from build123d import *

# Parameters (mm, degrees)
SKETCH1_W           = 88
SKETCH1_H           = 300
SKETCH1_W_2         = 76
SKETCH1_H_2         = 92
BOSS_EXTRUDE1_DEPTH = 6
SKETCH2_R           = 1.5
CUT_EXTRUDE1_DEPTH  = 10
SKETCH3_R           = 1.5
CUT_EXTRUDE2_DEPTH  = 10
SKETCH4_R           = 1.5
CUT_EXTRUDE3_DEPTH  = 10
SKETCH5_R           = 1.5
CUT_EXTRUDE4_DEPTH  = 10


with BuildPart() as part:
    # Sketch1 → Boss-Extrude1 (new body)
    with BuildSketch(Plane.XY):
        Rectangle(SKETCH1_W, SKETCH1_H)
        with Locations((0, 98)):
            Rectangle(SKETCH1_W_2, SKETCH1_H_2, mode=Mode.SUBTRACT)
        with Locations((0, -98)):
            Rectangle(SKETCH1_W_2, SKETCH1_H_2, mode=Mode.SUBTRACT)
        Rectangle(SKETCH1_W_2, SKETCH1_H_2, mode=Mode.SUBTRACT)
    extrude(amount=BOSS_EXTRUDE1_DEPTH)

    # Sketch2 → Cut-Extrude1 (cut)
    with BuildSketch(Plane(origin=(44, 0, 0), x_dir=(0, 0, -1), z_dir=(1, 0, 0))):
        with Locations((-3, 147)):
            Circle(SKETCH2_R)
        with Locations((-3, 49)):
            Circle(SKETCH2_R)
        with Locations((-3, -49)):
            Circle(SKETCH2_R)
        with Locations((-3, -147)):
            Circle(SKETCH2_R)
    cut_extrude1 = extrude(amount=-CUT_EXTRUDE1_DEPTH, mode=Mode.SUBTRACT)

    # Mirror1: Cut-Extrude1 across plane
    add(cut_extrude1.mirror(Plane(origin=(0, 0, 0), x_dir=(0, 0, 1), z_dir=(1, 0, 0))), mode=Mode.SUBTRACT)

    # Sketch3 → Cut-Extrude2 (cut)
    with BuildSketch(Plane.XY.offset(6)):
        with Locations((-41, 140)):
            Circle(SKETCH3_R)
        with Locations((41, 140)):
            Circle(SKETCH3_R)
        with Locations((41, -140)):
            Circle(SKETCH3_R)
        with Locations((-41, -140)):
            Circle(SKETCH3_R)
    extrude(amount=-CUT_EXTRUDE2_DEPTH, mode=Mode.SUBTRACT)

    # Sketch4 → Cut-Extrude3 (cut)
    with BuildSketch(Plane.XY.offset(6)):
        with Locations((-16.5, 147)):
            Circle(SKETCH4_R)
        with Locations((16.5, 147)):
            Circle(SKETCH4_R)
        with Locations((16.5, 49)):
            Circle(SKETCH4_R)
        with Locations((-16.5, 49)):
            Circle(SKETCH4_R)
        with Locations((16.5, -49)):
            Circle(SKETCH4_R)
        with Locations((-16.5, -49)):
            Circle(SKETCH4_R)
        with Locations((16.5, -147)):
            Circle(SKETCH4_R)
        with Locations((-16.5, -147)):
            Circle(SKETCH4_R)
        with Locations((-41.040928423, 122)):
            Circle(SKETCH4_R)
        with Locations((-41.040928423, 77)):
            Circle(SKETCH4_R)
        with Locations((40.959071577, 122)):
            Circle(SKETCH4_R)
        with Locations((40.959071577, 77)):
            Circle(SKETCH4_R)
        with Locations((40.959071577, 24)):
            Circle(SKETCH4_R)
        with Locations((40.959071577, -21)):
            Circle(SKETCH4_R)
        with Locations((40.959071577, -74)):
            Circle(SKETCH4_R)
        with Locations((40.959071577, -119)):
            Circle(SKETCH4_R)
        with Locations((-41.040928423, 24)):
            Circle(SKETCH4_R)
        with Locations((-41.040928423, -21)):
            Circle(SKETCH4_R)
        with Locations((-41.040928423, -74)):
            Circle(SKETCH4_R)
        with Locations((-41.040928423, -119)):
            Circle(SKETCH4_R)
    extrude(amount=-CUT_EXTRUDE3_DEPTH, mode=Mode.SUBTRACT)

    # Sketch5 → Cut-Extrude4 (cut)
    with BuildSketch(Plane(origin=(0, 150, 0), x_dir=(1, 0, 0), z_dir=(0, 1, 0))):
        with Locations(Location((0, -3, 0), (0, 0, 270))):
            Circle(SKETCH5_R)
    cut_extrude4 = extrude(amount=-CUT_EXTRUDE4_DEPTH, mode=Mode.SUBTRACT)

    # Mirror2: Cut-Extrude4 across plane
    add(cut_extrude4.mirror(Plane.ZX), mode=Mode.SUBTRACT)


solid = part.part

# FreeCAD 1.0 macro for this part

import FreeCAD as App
import Part
import Sketcher

V = App.Vector


def add_polygon(sketch, points):
    """Adds a closed chain of lines whose ends are joined by coincident constraints."""
    first, n = sketch.GeometryCount, len(points)
    for a, b in zip(points, points[1:] + points[:1]):
        sketch.addGeometry(Part.LineSegment(App.Vector(*a, 0), App.Vector(*b, 0)), False)
    for i in range(n):
        sketch.addConstraint(Sketcher.Constraint("Coincident", first + i, 2, first + (i + 1) % n, 1))

doc = App.newDocument("Part")
body = doc.addObject("PartDesign::Body", "Body")

# Sketch on XY plane
sketch1 = body.newObject("Sketcher::SketchObject", "Sketch")
sketch1.AttachmentSupport = (doc.getObject("XY_Plane"), [""])
sketch1.MapMode = "FlatFace"
add_polygon(sketch1, [(-44, 150), (-44, -150), (44, -150), (44, 150)])  # lines 0-3
add_polygon(sketch1, [(38, -144), (-38, -144), (-38, -52), (38, -52)])  # lines 4-7
add_polygon(sketch1, [(38, -46), (-38, -46), (-38, 46), (38, 46)])  # lines 8-11
add_polygon(sketch1, [(38, 52), (-38, 52), (-38, 144), (38, 144)])  # lines 12-15
sketch1.addConstraint([
    Sketcher.Constraint("Vertical", 0),
    Sketcher.Constraint("Horizontal", 1),
    Sketcher.Constraint("Vertical", 2),
    Sketcher.Constraint("Horizontal", 3),
    Sketcher.Constraint("Horizontal", 4),
    Sketcher.Constraint("Vertical", 5),
    Sketcher.Constraint("Horizontal", 6),
    Sketcher.Constraint("Vertical", 7),
    Sketcher.Constraint("Horizontal", 8),
    Sketcher.Constraint("Vertical", 9),
    Sketcher.Constraint("Horizontal", 10),
    Sketcher.Constraint("Vertical", 11),
    Sketcher.Constraint("Horizontal", 12),
    Sketcher.Constraint("Vertical", 13),
    Sketcher.Constraint("Horizontal", 14),
    Sketcher.Constraint("Vertical", 15),
    Sketcher.Constraint("Symmetric", 0, 2, 2, 2, -1, 1),
    Sketcher.Constraint("Symmetric", 8, 2, 10, 2, -1, 1),
    Sketcher.Constraint("Symmetric", 6, 2, 12, 2, -1, 1),
    Sketcher.Constraint("Symmetric", 4, 2, 14, 2, -1, 1),
    Sketcher.Constraint("Vertical", 5, 2, 8, 2),
    Sketcher.Constraint("Vertical", 7, 2, 10, 2),
    Sketcher.Constraint("Equal", 7, 9),
    Sketcher.Constraint("DistanceX", 1, 1, 1, 2, 88.0),
    Sketcher.Constraint("DistanceX", 4, 2, 4, 1, 76.0),
    Sketcher.Constraint("DistanceY", 0, 2, 0, 1, 300.0),
    Sketcher.Constraint("DistanceY", 5, 1, 5, 2, 92.0),
    Sketcher.Constraint("DistanceY", 4, 2, -1, 1, 144.0),
])
pad1 = body.newObject("PartDesign::Pad", "Pad")
pad1.Profile = sketch1
pad1.Length = 6

# Sketch on YZ plane
sketch2 = body.newObject("Sketcher::SketchObject", "Sketch001")
sketch2.AttachmentSupport = (doc.getObject("YZ_Plane"), [""])
sketch2.MapMode = "FlatFace"
sketch2.AttachmentOffset = App.Placement(V(0, 0, 44), App.Rotation())
sketch2.addGeometry([
    Part.Circle(V(147, 3, 0), V(0, 0, 1), 1.5),
    Part.Circle(V(49, 3, 0), V(0, 0, 1), 1.5),
    Part.Circle(V(-49, 3, 0), V(0, 0, 1), 1.5),
    Part.Circle(V(-147, 3, 0), V(0, 0, 1), 1.5),
], False)
sketch2.addConstraint([
    Sketcher.Constraint("Equal", 0, 1),
    Sketcher.Constraint("Equal", 1, 2),
    Sketcher.Constraint("Equal", 2, 3),
    Sketcher.Constraint("Symmetric", 1, 3, 2, 3, -2),
    Sketcher.Constraint("Symmetric", 0, 3, 3, 3, -2),
    Sketcher.Constraint("Horizontal", 0, 3, 1, 3),
    Sketcher.Constraint("Diameter", 0, 3.0),
    Sketcher.Constraint("DistanceX", -1, 1, 0, 3, 147.0),
    Sketcher.Constraint("DistanceY", -1, 1, 0, 3, 3.0),
    Sketcher.Constraint("DistanceX", -1, 1, 1, 3, 49.0),
])
pocket1 = body.newObject("PartDesign::Pocket", "Pocket")
pocket1.Profile = sketch2
pocket1.Length = 10
doc.recompute()

mirrored = body.newObject("PartDesign::Mirrored", "Mirrored")
mirrored.Originals = [pocket1]
mirrored.MirrorPlane = (doc.getObject("YZ_Plane"), [""])
body.Tip = mirrored

# Sketch on XY plane
sketch3 = body.newObject("Sketcher::SketchObject", "Sketch002")
sketch3.AttachmentSupport = (doc.getObject("XY_Plane"), [""])
sketch3.MapMode = "FlatFace"
sketch3.AttachmentOffset = App.Placement(V(0, 0, 6), App.Rotation())
sketch3.addGeometry([
    Part.Circle(V(-41, 140, 0), V(0, 0, 1), 1.5),
    Part.Circle(V(41, 140, 0), V(0, 0, 1), 1.5),
    Part.Circle(V(41, -140, 0), V(0, 0, 1), 1.5),
    Part.Circle(V(-41, -140, 0), V(0, 0, 1), 1.5),
], False)
sketch3.addConstraint([
    Sketcher.Constraint("Equal", 0, 1),
    Sketcher.Constraint("Equal", 1, 2),
    Sketcher.Constraint("Equal", 2, 3),
    Sketcher.Constraint("Symmetric", 0, 3, 2, 3, -1, 1),
    Sketcher.Constraint("Symmetric", 1, 3, 3, 3, -1, 1),
    Sketcher.Constraint("Symmetric", 0, 3, 1, 3, -2),
    Sketcher.Constraint("Diameter", 0, 3.0),
    Sketcher.Constraint("DistanceX", 0, 3, -1, 1, 41.0),
    Sketcher.Constraint("DistanceY", -1, 1, 0, 3, 140.0),
])
pocket2 = body.newObject("PartDesign::Pocket", "Pocket001")
pocket2.Profile = sketch3
pocket2.Length = 10

# Sketch on XY plane
sketch4 = body.newObject("Sketcher::SketchObject", "Sketch003")
sketch4.AttachmentSupport = (doc.getObject("XY_Plane"), [""])
sketch4.MapMode = "FlatFace"
sketch4.AttachmentOffset = App.Placement(V(0, 0, 6), App.Rotation())
sketch4.addGeometry([
    Part.Circle(V(-16.5, 147, 0), V(0, 0, 1), 1.5),  # 0
    Part.Circle(V(16.5, 147, 0), V(0, 0, 1), 1.5),  # 1
    Part.Circle(V(16.5, 49, 0), V(0, 0, 1), 1.5),  # 2
    Part.Circle(V(-16.5, 49, 0), V(0, 0, 1), 1.5),  # 3
    Part.Circle(V(16.5, -49, 0), V(0, 0, 1), 1.5),  # 4
    Part.Circle(V(-16.5, -49, 0), V(0, 0, 1), 1.5),  # 5
    Part.Circle(V(16.5, -147, 0), V(0, 0, 1), 1.5),  # 6
    Part.Circle(V(-16.5, -147, 0), V(0, 0, 1), 1.5),  # 7
    Part.Circle(V(-41, 122, 0), V(0, 0, 1), 1.5),  # 8
    Part.Circle(V(-41, 77, 0), V(0, 0, 1), 1.5),  # 9
    Part.Circle(V(41, 122, 0), V(0, 0, 1), 1.5),  # 10
    Part.Circle(V(41, 77, 0), V(0, 0, 1), 1.5),  # 11
    Part.Circle(V(41, 24, 0), V(0, 0, 1), 1.5),  # 12
    Part.Circle(V(41, -21, 0), V(0, 0, 1), 1.5),  # 13
    Part.Circle(V(41, -74, 0), V(0, 0, 1), 1.5),  # 14
    Part.Circle(V(41, -119, 0), V(0, 0, 1), 1.5),  # 15
    Part.Circle(V(-41, 24, 0), V(0, 0, 1), 1.5),  # 16
    Part.Circle(V(-41, -21, 0), V(0, 0, 1), 1.5),  # 17
    Part.Circle(V(-41, -74, 0), V(0, 0, 1), 1.5),  # 18
    Part.Circle(V(-41, -119, 0), V(0, 0, 1), 1.5),  # 19
], False)
sketch4.addConstraint([
    Sketcher.Constraint("Equal", 0, 1),
    Sketcher.Constraint("Equal", 1, 2),
    Sketcher.Constraint("Equal", 2, 3),
    Sketcher.Constraint("Equal", 3, 4),
    Sketcher.Constraint("Equal", 4, 5),
    Sketcher.Constraint("Equal", 5, 6),
    Sketcher.Constraint("Equal", 6, 7),
    Sketcher.Constraint("Equal", 7, 8),
    Sketcher.Constraint("Equal", 8, 9),
    Sketcher.Constraint("Equal", 9, 10),
    Sketcher.Constraint("Equal", 10, 11),
    Sketcher.Constraint("Equal", 11, 12),
    Sketcher.Constraint("Equal", 12, 13),
    Sketcher.Constraint("Equal", 13, 14),
    Sketcher.Constraint("Equal", 14, 15),
    Sketcher.Constraint("Equal", 15, 16),
    Sketcher.Constraint("Equal", 16, 17),
    Sketcher.Constraint("Equal", 17, 18),
    Sketcher.Constraint("Equal", 18, 19),
    Sketcher.Constraint("Symmetric", 3, 3, 4, 3, -1, 1),
    Sketcher.Constraint("Symmetric", 2, 3, 5, 3, -1, 1),
    Sketcher.Constraint("Symmetric", 0, 3, 6, 3, -1, 1),
    Sketcher.Constraint("Symmetric", 1, 3, 7, 3, -1, 1),
    Sketcher.Constraint("Symmetric", 0, 3, 1, 3, -2),
    Sketcher.Constraint("Symmetric", 2, 3, 3, 3, -2),
    Sketcher.Constraint("Horizontal", 8, 3, 10, 3),
    Sketcher.Constraint("Horizontal", 9, 3, 11, 3),
    Sketcher.Constraint("Horizontal", 12, 3, 16, 3),
    Sketcher.Constraint("Horizontal", 13, 3, 17, 3),
    Sketcher.Constraint("Horizontal", 14, 3, 18, 3),
    Sketcher.Constraint("Horizontal", 15, 3, 19, 3),
    Sketcher.Constraint("Vertical", 1, 3, 2, 3),
    Sketcher.Constraint("Vertical", 8, 3, 9, 3),
    Sketcher.Constraint("Vertical", 10, 3, 11, 3),
    Sketcher.Constraint("Vertical", 11, 3, 12, 3),
    Sketcher.Constraint("Vertical", 12, 3, 13, 3),
    Sketcher.Constraint("Vertical", 13, 3, 14, 3),
    Sketcher.Constraint("Vertical", 14, 3, 15, 3),
    Sketcher.Constraint("Vertical", 9, 3, 16, 3),
    Sketcher.Constraint("Vertical", 16, 3, 17, 3),
    Sketcher.Constraint("Vertical", 17, 3, 18, 3),
    Sketcher.Constraint("Vertical", 18, 3, 19, 3),
    Sketcher.Constraint("Diameter", 0, 3.0),
    Sketcher.Constraint("DistanceY", -1, 1, 0, 3, 147.0),
    Sketcher.Constraint("DistanceY", -1, 1, 2, 3, 49.0),
    Sketcher.Constraint("DistanceY", -1, 1, 8, 3, 122.0),
    Sketcher.Constraint("DistanceY", -1, 1, 9, 3, 77.0),
    Sketcher.Constraint("DistanceY", -1, 1, 12, 3, 24.0),
    Sketcher.Constraint("DistanceY", 13, 3, -1, 1, 21.0),
    Sketcher.Constraint("DistanceY", 14, 3, -1, 1, 74.0),
    Sketcher.Constraint("DistanceY", 15, 3, -1, 1, 119.0),
    Sketcher.Constraint("DistanceX", 0, 3, 1, 3, 33.0),
    Sketcher.Constraint("DistanceX", 8, 3, 10, 3, 82.0),
    Sketcher.Constraint("DistanceX", 8, 3, -1, 1, 41.040928),
])
pocket3 = body.newObject("PartDesign::Pocket", "Pocket002")
pocket3.Profile = sketch4
pocket3.Length = 10

# Sketch on XZ plane
sketch5 = body.newObject("Sketcher::SketchObject", "Sketch004")
sketch5.AttachmentSupport = (doc.getObject("XZ_Plane"), [""])
sketch5.MapMode = "FlatFace"
sketch5.AttachmentOffset = App.Placement(V(0, 0, -150), App.Rotation())
sketch5.addGeometry(Part.Circle(V(0, 3, 0), V(0, 0, 1), 1.5), False)
sketch5.addConstraint([
    Sketcher.Constraint("PointOnObject", 0, 3, -2),
    Sketcher.Constraint("Diameter", 0, 3.0),
    Sketcher.Constraint("DistanceY", -1, 1, 0, 3, 3.0),
])
pocket4 = body.newObject("PartDesign::Pocket", "Pocket003")
pocket4.Profile = sketch5
pocket4.Length = 10
pocket4.Reversed = True
doc.recompute()

mirrored2 = body.newObject("PartDesign::Mirrored", "Mirrored001")
mirrored2.Originals = [pocket4]
mirrored2.MirrorPlane = (doc.getObject("XZ_Plane"), [""])
body.Tip = mirrored2

doc.recompute()
